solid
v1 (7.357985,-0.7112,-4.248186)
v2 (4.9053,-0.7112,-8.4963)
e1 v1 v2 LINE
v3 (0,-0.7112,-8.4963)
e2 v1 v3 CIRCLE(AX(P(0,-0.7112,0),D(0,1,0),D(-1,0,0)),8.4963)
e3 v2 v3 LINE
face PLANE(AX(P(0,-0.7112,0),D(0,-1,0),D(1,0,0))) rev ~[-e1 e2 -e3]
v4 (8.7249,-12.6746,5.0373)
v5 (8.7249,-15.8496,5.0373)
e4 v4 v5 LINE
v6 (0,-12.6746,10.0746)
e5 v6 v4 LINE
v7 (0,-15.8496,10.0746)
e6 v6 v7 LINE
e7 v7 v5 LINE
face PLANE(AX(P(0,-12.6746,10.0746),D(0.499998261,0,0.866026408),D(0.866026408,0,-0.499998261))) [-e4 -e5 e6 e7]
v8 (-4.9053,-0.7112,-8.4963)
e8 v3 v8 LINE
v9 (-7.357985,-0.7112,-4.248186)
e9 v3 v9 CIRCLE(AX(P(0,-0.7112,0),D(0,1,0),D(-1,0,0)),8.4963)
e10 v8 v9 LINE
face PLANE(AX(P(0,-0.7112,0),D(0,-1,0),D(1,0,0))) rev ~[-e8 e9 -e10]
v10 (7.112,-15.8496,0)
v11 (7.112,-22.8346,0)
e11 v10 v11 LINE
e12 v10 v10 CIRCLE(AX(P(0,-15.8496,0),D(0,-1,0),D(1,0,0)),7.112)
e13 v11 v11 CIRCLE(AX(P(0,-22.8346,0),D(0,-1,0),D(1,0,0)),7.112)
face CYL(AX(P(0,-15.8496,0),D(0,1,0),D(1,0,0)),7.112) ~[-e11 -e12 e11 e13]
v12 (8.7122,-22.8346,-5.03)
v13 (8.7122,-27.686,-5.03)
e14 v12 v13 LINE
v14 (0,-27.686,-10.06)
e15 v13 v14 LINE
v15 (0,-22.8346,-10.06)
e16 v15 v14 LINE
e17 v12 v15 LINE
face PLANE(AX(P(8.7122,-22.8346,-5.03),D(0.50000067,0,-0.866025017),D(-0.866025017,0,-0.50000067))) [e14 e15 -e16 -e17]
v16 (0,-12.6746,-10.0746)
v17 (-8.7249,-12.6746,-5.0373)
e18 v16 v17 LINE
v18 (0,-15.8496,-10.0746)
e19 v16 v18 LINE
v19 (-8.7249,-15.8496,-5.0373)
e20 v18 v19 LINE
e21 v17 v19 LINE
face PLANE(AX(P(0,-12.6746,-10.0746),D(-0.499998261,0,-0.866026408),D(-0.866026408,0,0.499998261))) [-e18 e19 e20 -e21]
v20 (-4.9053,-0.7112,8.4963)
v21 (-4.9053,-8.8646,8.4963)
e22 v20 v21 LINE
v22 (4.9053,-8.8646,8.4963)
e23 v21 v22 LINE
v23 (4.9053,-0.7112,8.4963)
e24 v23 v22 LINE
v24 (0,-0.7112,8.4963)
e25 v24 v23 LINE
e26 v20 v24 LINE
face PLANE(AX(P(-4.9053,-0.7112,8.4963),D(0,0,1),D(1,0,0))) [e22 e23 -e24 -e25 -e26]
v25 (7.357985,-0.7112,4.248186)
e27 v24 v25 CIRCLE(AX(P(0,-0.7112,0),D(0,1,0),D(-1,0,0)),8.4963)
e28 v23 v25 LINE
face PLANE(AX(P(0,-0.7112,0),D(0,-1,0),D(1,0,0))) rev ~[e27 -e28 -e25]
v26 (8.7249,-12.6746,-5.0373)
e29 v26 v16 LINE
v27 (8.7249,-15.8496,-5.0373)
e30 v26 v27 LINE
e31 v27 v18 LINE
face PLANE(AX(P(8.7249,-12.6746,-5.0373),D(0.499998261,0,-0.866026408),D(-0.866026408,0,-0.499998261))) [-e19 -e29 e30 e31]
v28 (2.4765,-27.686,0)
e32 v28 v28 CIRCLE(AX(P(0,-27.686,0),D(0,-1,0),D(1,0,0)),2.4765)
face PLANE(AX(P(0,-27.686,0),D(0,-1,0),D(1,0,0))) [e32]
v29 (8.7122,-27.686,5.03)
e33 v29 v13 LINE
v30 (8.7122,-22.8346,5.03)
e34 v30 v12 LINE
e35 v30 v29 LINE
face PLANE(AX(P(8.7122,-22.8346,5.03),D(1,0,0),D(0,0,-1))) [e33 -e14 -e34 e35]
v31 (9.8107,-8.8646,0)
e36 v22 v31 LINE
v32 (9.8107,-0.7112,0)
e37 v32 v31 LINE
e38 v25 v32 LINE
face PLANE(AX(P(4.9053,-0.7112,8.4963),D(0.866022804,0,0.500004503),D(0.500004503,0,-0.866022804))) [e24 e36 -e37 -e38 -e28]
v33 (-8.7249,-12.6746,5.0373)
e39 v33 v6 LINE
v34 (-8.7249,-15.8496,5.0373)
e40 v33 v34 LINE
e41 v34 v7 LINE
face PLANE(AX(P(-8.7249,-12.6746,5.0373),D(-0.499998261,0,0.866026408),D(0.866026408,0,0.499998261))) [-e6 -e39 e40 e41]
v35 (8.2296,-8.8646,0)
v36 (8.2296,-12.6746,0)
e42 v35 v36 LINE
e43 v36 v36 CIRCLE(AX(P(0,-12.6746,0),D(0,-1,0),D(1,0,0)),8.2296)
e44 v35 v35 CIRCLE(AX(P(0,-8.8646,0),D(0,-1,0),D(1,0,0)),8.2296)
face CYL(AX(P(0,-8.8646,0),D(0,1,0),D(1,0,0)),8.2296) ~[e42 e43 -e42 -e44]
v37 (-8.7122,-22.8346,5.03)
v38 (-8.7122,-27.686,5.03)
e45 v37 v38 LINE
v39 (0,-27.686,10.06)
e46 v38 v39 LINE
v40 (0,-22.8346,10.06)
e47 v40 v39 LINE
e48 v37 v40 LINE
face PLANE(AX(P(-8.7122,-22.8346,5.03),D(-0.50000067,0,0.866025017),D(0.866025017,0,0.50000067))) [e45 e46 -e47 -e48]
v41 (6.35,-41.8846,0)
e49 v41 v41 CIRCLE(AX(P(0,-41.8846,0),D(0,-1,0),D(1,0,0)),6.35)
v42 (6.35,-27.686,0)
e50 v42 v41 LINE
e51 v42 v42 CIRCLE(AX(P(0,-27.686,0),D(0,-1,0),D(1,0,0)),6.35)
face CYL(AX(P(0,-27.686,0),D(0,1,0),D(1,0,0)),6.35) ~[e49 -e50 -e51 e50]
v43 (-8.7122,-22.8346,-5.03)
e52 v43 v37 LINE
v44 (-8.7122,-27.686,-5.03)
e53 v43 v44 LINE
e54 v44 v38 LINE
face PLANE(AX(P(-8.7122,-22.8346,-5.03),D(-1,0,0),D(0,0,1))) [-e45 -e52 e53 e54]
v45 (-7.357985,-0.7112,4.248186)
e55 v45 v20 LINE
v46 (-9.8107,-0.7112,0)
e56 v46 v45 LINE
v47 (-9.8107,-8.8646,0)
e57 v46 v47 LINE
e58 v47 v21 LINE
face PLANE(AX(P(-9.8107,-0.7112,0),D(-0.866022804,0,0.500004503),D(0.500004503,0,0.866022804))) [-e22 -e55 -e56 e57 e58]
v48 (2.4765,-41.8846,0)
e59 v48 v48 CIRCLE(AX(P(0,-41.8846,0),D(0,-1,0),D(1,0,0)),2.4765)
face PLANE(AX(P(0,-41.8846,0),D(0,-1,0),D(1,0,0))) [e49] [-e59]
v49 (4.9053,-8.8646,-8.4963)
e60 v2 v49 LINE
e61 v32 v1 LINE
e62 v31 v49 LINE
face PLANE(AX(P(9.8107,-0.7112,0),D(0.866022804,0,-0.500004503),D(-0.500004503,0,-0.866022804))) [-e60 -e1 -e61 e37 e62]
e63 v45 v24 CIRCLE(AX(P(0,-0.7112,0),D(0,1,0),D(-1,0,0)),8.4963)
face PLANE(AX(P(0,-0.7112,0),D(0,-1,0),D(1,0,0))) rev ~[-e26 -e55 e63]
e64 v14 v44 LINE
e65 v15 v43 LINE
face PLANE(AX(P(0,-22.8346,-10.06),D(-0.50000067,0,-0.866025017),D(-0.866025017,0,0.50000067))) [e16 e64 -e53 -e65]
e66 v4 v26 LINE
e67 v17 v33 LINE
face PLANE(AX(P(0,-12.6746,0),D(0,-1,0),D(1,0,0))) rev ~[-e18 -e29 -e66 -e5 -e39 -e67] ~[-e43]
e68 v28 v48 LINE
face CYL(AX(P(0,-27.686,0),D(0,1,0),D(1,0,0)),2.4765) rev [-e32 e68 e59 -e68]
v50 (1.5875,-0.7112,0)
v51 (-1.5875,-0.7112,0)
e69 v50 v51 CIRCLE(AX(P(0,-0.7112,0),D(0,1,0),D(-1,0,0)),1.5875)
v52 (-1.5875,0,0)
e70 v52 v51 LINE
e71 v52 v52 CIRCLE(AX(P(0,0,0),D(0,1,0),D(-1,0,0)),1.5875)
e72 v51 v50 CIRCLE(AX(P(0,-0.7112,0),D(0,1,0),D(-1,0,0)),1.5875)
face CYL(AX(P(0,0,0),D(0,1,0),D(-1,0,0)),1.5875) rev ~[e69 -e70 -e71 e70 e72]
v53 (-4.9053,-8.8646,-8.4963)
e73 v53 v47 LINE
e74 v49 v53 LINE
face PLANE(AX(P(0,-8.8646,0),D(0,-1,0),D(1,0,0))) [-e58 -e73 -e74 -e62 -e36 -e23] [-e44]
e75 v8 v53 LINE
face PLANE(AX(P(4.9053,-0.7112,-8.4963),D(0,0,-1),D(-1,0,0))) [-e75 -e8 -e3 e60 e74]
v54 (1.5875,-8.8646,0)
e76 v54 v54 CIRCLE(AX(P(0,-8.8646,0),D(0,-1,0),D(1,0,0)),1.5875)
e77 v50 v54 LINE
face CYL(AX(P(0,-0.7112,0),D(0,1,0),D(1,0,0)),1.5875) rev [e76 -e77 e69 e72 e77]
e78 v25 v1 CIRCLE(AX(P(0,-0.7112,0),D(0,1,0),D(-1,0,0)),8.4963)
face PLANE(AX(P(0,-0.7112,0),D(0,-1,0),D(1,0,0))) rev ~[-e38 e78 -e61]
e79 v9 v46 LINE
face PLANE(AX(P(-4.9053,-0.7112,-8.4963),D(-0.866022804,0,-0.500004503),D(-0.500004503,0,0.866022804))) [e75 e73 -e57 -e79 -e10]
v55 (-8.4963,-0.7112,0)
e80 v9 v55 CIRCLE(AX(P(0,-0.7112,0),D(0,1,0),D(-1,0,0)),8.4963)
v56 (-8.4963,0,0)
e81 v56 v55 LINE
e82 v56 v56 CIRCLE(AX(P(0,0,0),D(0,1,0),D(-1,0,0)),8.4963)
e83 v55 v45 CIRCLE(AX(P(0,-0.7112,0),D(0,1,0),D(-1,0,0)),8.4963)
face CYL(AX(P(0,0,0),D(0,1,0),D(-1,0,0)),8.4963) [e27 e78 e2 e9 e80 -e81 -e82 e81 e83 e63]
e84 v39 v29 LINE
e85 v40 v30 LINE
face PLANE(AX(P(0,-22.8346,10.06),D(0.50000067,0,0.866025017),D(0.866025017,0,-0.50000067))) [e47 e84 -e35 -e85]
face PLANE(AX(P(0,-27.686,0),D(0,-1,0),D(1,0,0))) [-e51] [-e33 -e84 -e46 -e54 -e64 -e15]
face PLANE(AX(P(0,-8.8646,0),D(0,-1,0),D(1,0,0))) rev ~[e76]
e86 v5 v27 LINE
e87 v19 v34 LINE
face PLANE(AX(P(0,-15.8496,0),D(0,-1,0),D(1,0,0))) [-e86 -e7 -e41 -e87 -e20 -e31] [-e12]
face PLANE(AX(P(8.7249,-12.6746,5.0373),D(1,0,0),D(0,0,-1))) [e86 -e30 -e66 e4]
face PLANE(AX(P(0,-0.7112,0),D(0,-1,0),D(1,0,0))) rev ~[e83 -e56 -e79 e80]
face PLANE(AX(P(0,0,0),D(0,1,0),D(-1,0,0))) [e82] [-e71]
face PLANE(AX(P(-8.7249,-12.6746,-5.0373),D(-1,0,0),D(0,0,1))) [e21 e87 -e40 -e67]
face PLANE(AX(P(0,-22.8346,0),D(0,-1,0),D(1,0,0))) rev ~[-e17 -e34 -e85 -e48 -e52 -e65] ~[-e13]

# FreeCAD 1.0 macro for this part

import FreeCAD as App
import Part
import Sketcher
from FreeCAD import Vector
Q = App.Units.Quantity

doc = App.newDocument("Part")
params = doc.addObject("Spreadsheet::Sheet", "Params")
for row, (alias, value) in enumerate([
    ("sketch1_diameter", "0.669 in"),
    ("sketch1_diameter2", "0.125 in"),
    ("pad1_length", "0.028 in"),
    ("sketch2_diameter", "0.125 in"),
    ("pad2_length", "0.321 in"),
    ("sketch3_diameter", "0.648 in"),
    ("pad3_length", "0.15 in"),
    ("pad4_length", "0.125 in"),
    ("sketch5_diameter", "0.56 in"),
    ("pad5_length", "0.275 in"),
    ("pad6_length", "0.191 in"),
    ("sketch7_diameter", "0.5 in"),
    ("sketch7_diameter2", "0.195 in"),
    ("pad7_length", "0.559 in"),
], start=1):
    params.set(f"A{row}", alias)
    params.set(f"B{row}", "=" + value)
    params.setAlias(f"B{row}", alias)

body = doc.addObject("PartDesign::Body", "Body")

# Sketch on XZ plane
sketch1 = doc.addObject("Sketcher::SketchObject", "Sketch")
body.addObject(sketch1)
sketch1.AttachmentSupport = (doc.XZ_Plane, [""])
sketch1.MapMode = "FlatFace"
sketch1.addGeometry([
    Part.Circle(Vector(0, 0, 0), Vector(0, 0, 1), 8.5),
    Part.Circle(Vector(0, 0, 0), Vector(0, 0, 1), 1.6),
], False)
sketch1.addConstraint([
    Sketcher.Constraint("Coincident", 0, 3, -1, 1),
    Sketcher.Constraint("Coincident", 1, 3, -1, 1),
    Sketcher.Constraint("Diameter", 0, Q("0.669 in")),
    Sketcher.Constraint("Diameter", 1, Q("0.125 in")),
])
sketch1.setExpression("Constraints[2]", "Params.sketch1_diameter")
sketch1.setExpression("Constraints[3]", "Params.sketch1_diameter2")
pad1 = doc.addObject("PartDesign::Pad", "Pad")
body.addObject(pad1)
pad1.Profile = sketch1
pad1.setExpression("Length", "Params.pad1_length")

# Sketch on XZ plane
sketch2 = doc.addObject("Sketcher::SketchObject", "Sketch001")
body.addObject(sketch2)
sketch2.AttachmentSupport = (doc.XZ_Plane, [""])
sketch2.MapMode = "FlatFace"
sketch2.AttachmentOffset = App.Placement(Vector(0, 0, 0.028 * 25.4), App.Rotation())
sketch2.addGeometry([
    Part.LineSegment(Vector(9.8, 0, 0), Vector(4.9, 8.5, 0)),  # 0
    Part.LineSegment(Vector(4.9, 8.5, 0), Vector(-4.9, 8.5, 0)),  # 1
    Part.LineSegment(Vector(-4.9, 8.5, 0), Vector(-9.8, 0, 0)),  # 2
    Part.LineSegment(Vector(-9.8, 0, 0), Vector(-4.9, -8.5, 0)),  # 3
    Part.LineSegment(Vector(-4.9, -8.5, 0), Vector(4.9, -8.5, 0)),  # 4
    Part.LineSegment(Vector(4.9, -8.5, 0), Vector(9.8, 0, 0)),  # 5
    Part.Circle(Vector(0, 0, 0), Vector(0, 0, 1), 1.6),  # 6
], False)
sketch2.addConstraint([
    Sketcher.Constraint("Coincident", 0, 2, 1, 1),
    Sketcher.Constraint("Coincident", 1, 2, 2, 1),
    Sketcher.Constraint("Coincident", 2, 2, 3, 1),
    Sketcher.Constraint("Coincident", 3, 2, 4, 1),
    Sketcher.Constraint("Coincident", 4, 2, 5, 1),
    Sketcher.Constraint("Coincident", 5, 2, 0, 1),
    Sketcher.Constraint("Horizontal", 1),
    Sketcher.Constraint("Horizontal", 4),
    Sketcher.Constraint("Coincident", 6, 3, -1, 1),
    Sketcher.Constraint("Symmetric", 0, 2, 3, 2, -1, 1),
    Sketcher.Constraint("Symmetric", 2, 2, 5, 2, -1, 1),
    Sketcher.Constraint("PointOnObject", 2, 2, -1),
    Sketcher.Constraint("Parallel", 2, 5),
    Sketcher.Constraint("Vertical", 1, 2, 3, 2),
    Sketcher.Constraint("Diameter", 6, Q("0.125 in")),
    Sketcher.Constraint("Angle", 0, Q("120.0003 deg")),
    Sketcher.Constraint("DistanceY", 3, 2, 1, 2, Q("0.669 in")),
    Sketcher.Constraint("DistanceX", 1, 2, 1, 1, 9.8106),
])
sketch2.setExpression("Constraints[14]", "Params.sketch2_diameter")
pad2 = doc.addObject("PartDesign::Pad", "Pad001")
body.addObject(pad2)
pad2.Profile = sketch2
pad2.setExpression("Length", "Params.pad2_length")

# Sketch on XZ plane
sketch3 = doc.addObject("Sketcher::SketchObject", "Sketch002")
body.addObject(sketch3)
sketch3.AttachmentSupport = (doc.XZ_Plane, [""])
sketch3.MapMode = "FlatFace"
sketch3.AttachmentOffset = App.Placement(Vector(0, 0, 0.349 * 25.4), App.Rotation())
sketch3.addGeometry(Part.Circle(Vector(0, 0, 0), Vector(0, 0, 1), 8), False)
sketch3.addConstraint([
    Sketcher.Constraint("Coincident", 0, 3, -1, 1),
    Sketcher.Constraint("Diameter", 0, Q("0.648 in")),
])
sketch3.setExpression("Constraints[1]", "Params.sketch3_diameter")
pad3 = doc.addObject("PartDesign::Pad", "Pad002")
body.addObject(pad3)
pad3.Profile = sketch3
pad3.setExpression("Length", "Params.pad3_length")

# Sketch on XZ plane
sketch4 = doc.addObject("Sketcher::SketchObject", "Sketch003")
body.addObject(sketch4)
sketch4.AttachmentSupport = (doc.XZ_Plane, [""])
sketch4.MapMode = "FlatFace"
sketch4.AttachmentOffset = App.Placement(Vector(0, 0, 0.499 * 25.4), App.Rotation())
sketch4.addGeometry([
    Part.LineSegment(Vector(0, -10, 0), Vector(9, -5, 0)),  # 0
    Part.LineSegment(Vector(9, -5, 0), Vector(9, 5, 0)),  # 1
    Part.LineSegment(Vector(9, 5, 0), Vector(0, 10, 0)),  # 2
    Part.LineSegment(Vector(0, 10, 0), Vector(-9, 5, 0)),  # 3
    Part.LineSegment(Vector(-9, 5, 0), Vector(-9, -5, 0)),  # 4
    Part.LineSegment(Vector(-9, -5, 0), Vector(0, -10, 0)),  # 5
], False)
sketch4.addConstraint([
    Sketcher.Constraint("Coincident", 0, 2, 1, 1),
    Sketcher.Constraint("Coincident", 1, 2, 2, 1),
    Sketcher.Constraint("Coincident", 2, 2, 3, 1),
    Sketcher.Constraint("Coincident", 3, 2, 4, 1),
    Sketcher.Constraint("Coincident", 4, 2, 5, 1),
    Sketcher.Constraint("Coincident", 5, 2, 0, 1),
    Sketcher.Constraint("Vertical", 1),
    Sketcher.Constraint("Vertical", 4),
    Sketcher.Constraint("Symmetric", 0, 2, 3, 2, -1, 1),
    Sketcher.Constraint("Symmetric", 2, 2, 5, 2, -1, 1),
    Sketcher.Constraint("PointOnObject", 2, 2, -2),
    Sketcher.Constraint("Parallel", 2, 5),
    Sketcher.Constraint("Horizontal", 1, 2, 3, 2),
    Sketcher.Constraint("Angle", 0, Q("30 deg")),
    Sketcher.Constraint("DistanceX", 3, 2, 1, 2, Q("0.687 in")),
    Sketcher.Constraint("DistanceY", 1, 1, 1, 2, 10.0746),
])
pad4 = doc.addObject("PartDesign::Pad", "Pad003")
body.addObject(pad4)
pad4.Profile = sketch4
pad4.setExpression("Length", "Params.pad4_length")

# Sketch on XZ plane
sketch5 = doc.addObject("Sketcher::SketchObject", "Sketch004")
body.addObject(sketch5)
sketch5.AttachmentSupport = (doc.XZ_Plane, [""])
sketch5.MapMode = "FlatFace"
sketch5.AttachmentOffset = App.Placement(Vector(0, 0, 0.624 * 25.4), App.Rotation())
sketch5.addGeometry(Part.Circle(Vector(0, 0, 0), Vector(0, 0, 1), 7), False)
sketch5.addConstraint([
    Sketcher.Constraint("Coincident", 0, 3, -1, 1),
    Sketcher.Constraint("Diameter", 0, Q("0.56 in")),
])
sketch5.setExpression("Constraints[1]", "Params.sketch5_diameter")
pad5 = doc.addObject("PartDesign::Pad", "Pad004")
body.addObject(pad5)
pad5.Profile = sketch5
pad5.setExpression("Length", "Params.pad5_length")

# Sketch on XZ plane
sketch6 = doc.addObject("Sketcher::SketchObject", "Sketch005")
body.addObject(sketch6)
sketch6.AttachmentSupport = (doc.XZ_Plane, [""])
sketch6.MapMode = "FlatFace"
sketch6.AttachmentOffset = App.Placement(Vector(0, 0, 0.899 * 25.4), App.Rotation())
sketch6.addGeometry([
    Part.LineSegment(Vector(0, -10, 0), Vector(9, -5, 0)),  # 0
    Part.LineSegment(Vector(9, -5, 0), Vector(9, 5, 0)),  # 1
    Part.LineSegment(Vector(9, 5, 0), Vector(0, 10, 0)),  # 2
    Part.LineSegment(Vector(0, 10, 0), Vector(-9, 5, 0)),  # 3
    Part.LineSegment(Vector(-9, 5, 0), Vector(-9, -5, 0)),  # 4
    Part.LineSegment(Vector(-9, -5, 0), Vector(0, -10, 0)),  # 5
], False)
sketch6.addConstraint([
    Sketcher.Constraint("Coincident", 0, 2, 1, 1),
    Sketcher.Constraint("Coincident", 1, 2, 2, 1),
    Sketcher.Constraint("Coincident", 2, 2, 3, 1),
    Sketcher.Constraint("Coincident", 3, 2, 4, 1),
    Sketcher.Constraint("Coincident", 4, 2, 5, 1),
    Sketcher.Constraint("Coincident", 5, 2, 0, 1),
    Sketcher.Constraint("Vertical", 1),
    Sketcher.Constraint("Vertical", 4),
    Sketcher.Constraint("Symmetric", 0, 2, 3, 2, -1, 1),
    Sketcher.Constraint("Symmetric", 2, 2, 5, 2, -1, 1),
    Sketcher.Constraint("PointOnObject", 2, 2, -2),
    Sketcher.Constraint("Parallel", 2, 5),
    Sketcher.Constraint("Horizontal", 1, 2, 3, 2),
    Sketcher.Constraint("Angle", 0, Q("30 deg")),
    Sketcher.Constraint("DistanceX", 3, 2, 1, 2, Q("0.686 in")),
    Sketcher.Constraint("DistanceY", 1, 1, 1, 2, 10.06),
])
pad6 = doc.addObject("PartDesign::Pad", "Pad005")
body.addObject(pad6)
pad6.Profile = sketch6
pad6.setExpression("Length", "Params.pad6_length")

# Sketch on XZ plane
sketch7 = doc.addObject("Sketcher::SketchObject", "Sketch006")
body.addObject(sketch7)
sketch7.AttachmentSupport = (doc.XZ_Plane, [""])
sketch7.MapMode = "FlatFace"
sketch7.AttachmentOffset = App.Placement(Vector(0, 0, 1.09 * 25.4), App.Rotation())
sketch7.addGeometry([
    Part.Circle(Vector(0, 0, 0), Vector(0, 0, 1), 6.3),
    Part.Circle(Vector(0, 0, 0), Vector(0, 0, 1), 2.5),
], False)
sketch7.addConstraint([
    Sketcher.Constraint("Coincident", 0, 3, -1, 1),
    Sketcher.Constraint("Coincident", 1, 3, -1, 1),
    Sketcher.Constraint("Diameter", 0, Q("0.5 in")),
    Sketcher.Constraint("Diameter", 1, Q("0.195 in")),
])
sketch7.setExpression("Constraints[2]", "Params.sketch7_diameter")
sketch7.setExpression("Constraints[3]", "Params.sketch7_diameter2")
pad7 = doc.addObject("PartDesign::Pad", "Pad006")
body.addObject(pad7)
pad7.Profile = sketch7
pad7.setExpression("Length", "Params.pad7_length")

doc.recompute()
